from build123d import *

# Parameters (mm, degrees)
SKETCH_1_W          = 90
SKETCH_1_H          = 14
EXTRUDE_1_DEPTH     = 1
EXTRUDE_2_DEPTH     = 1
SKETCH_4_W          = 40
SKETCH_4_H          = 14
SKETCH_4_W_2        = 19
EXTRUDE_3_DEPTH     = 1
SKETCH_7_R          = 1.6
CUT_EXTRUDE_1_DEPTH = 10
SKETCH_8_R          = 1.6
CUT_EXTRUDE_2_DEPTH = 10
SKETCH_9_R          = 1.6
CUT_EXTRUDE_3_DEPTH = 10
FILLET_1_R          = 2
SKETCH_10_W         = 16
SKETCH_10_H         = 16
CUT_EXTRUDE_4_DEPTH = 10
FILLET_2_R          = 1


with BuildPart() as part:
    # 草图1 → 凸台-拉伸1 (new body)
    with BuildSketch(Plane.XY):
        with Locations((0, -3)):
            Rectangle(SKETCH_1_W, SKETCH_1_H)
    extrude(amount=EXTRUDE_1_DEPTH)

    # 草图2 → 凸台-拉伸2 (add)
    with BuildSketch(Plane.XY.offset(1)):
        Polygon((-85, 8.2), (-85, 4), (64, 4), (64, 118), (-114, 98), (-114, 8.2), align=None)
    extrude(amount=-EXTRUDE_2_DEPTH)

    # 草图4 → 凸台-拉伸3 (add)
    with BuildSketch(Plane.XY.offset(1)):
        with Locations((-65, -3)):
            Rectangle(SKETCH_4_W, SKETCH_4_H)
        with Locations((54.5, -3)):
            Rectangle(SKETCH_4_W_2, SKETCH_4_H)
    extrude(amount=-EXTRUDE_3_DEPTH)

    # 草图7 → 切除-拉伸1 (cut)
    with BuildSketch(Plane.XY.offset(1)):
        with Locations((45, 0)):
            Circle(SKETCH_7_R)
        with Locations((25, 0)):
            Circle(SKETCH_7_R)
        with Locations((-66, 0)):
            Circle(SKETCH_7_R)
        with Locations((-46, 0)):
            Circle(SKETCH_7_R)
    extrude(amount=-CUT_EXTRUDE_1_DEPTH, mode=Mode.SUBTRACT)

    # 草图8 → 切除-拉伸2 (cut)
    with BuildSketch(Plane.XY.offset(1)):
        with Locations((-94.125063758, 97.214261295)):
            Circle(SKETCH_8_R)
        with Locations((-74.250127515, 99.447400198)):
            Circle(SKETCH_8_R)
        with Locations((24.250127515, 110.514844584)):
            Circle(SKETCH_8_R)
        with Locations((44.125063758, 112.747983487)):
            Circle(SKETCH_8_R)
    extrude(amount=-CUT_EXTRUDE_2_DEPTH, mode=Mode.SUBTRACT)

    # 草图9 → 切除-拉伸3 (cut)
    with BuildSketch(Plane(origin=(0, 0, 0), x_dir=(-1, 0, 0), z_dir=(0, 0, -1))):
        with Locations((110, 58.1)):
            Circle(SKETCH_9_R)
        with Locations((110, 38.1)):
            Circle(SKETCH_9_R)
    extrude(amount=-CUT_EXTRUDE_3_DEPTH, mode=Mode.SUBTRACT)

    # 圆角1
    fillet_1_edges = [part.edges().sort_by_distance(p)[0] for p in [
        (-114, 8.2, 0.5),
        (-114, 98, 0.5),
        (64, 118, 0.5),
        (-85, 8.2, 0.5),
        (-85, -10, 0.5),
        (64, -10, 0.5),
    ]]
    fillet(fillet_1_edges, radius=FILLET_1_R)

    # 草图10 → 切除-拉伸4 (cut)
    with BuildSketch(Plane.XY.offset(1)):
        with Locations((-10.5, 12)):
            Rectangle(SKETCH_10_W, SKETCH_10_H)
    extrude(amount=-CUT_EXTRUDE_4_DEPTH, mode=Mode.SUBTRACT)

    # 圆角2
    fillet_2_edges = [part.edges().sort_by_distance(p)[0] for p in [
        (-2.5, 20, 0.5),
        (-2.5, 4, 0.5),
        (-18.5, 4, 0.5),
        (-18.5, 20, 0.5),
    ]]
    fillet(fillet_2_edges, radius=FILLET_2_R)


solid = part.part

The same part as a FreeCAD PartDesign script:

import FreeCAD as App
import Part
import Sketcher
from FreeCAD import Vector
Q = App.Units.Quantity


def edges_at(feature, points):
    """Names of the edges that pass closest to the given points."""
    edges = feature.Shape.Edges
    near = lambda p: min(range(len(edges)), key=lambda i: edges[i].distToShape(Part.Vertex(*p))[0])
    return sorted({f"Edge{near(p) + 1}" for p in points})


def add_polygon(sketch, points):
    """Adds a closed chain of lines whose ends are joined by coincident constraints."""
    first, n = sketch.GeometryCount, len(points)
    for a, b in zip(points, points[1:] + points[:1]):
        sketch.addGeometry(Part.LineSegment(App.Vector(*a, 0), App.Vector(*b, 0)), False)
    for i in range(n):
        sketch.addConstraint(Sketcher.Constraint("Coincident", first + i, 2, first + (i + 1) % n, 1))

doc = App.newDocument("Part")
body = doc.addObject("PartDesign::Body", "Body")

sketch1 = body.newObject("Sketcher::SketchObject", "Sketch")
sketch1.AttachmentSupport = (doc.getObject("XY_Plane"), [""])
sketch1.MapMode = "FlatFace"
add_polygon(sketch1, [(-45, 4), (-45, -10), (45, -10), (45, 4)])
sketch1.addConstraint([
    Sketcher.Constraint("Vertical", 0),
    Sketcher.Constraint("Horizontal", 1),
    Sketcher.Constraint("Vertical", 2),
    Sketcher.Constraint("Horizontal", 3),
    Sketcher.Constraint("DistanceX", 1, 1, 1, 2, Q("90 mm")),
    Sketcher.Constraint("DistanceY", 0, 2, 0, 1, Q("14 mm")),
    Sketcher.Constraint("DistanceX", 0, 2, -1, 1, Q("45 mm")),
    Sketcher.Constraint("DistanceY", 0, 2, -1, 1, Q("10 mm")),
])
pad1 = body.newObject("PartDesign::Pad", "Pad")
pad1.Profile = sketch1
pad1.Length = 1

sketch2 = body.newObject("Sketcher::SketchObject", "Sketch001")
sketch2.AttachmentSupport = (doc.getObject("XY_Plane"), [""])
sketch2.MapMode = "FlatFace"
sketch2.AttachmentOffset = App.Placement(Vector(0, 0, 1), App.Rotation())
add_polygon(sketch2, [(-85, 8.2), (-85, 4), (64, 4), (64, 118), (-114, 98), (-114, 8.2)])
sketch2.addConstraint([
    Sketcher.Constraint("Vertical", 0),
    Sketcher.Constraint("Horizontal", 1),
    Sketcher.Constraint("Vertical", 2),
    Sketcher.Constraint("Vertical", 4),
    Sketcher.Constraint("Horizontal", 5),
    Sketcher.Constraint("DistanceX", 1, 1, 1, 2, Q("149 mm")),
    Sketcher.Constraint("DistanceX", 5, 1, 5, 2, Q("29 mm")),
    Sketcher.Constraint("DistanceY", 2, 1, 2, 2, Q("114 mm")),
    Sketcher.Constraint("DistanceY", 0, 2, 0, 1, Q("4.2 mm")),
    Sketcher.Constraint("DistanceY", 4, 2, 4, 1, Q("89.8 mm")),
    Sketcher.Constraint("DistanceX", 0, 2, -1, 1, Q("85 mm")),
    Sketcher.Constraint("DistanceY", -1, 1, 0, 2, Q("4 mm")),
])
pad2 = body.newObject("PartDesign::Pad", "Pad001")
pad2.Profile = sketch2
pad2.Length = 1
pad2.Reversed = True

sketch3 = body.newObject("Sketcher::SketchObject", "Sketch002")
sketch3.AttachmentSupport = (doc.getObject("XY_Plane"), [""])
sketch3.MapMode = "FlatFace"
sketch3.AttachmentOffset = App.Placement(Vector(0, 0, 1), App.Rotation())
add_polygon(sketch3, [(-85, 4), (-85, -10), (-45, -10), (-45, 4)])
add_polygon(sketch3, [(45, 4), (45, -10), (64, -10), (64, 4)])
sketch3.addConstraint([
    Sketcher.Constraint("Vertical", 0),
    Sketcher.Constraint("Horizontal", 1),
    Sketcher.Constraint("Vertical", 2),
    Sketcher.Constraint("Horizontal", 3),
    Sketcher.Constraint("Vertical", 4),
    Sketcher.Constraint("Horizontal", 5),
    Sketcher.Constraint("Vertical", 6),
    Sketcher.Constraint("Horizontal", 7),
    Sketcher.Constraint("Symmetric", 1, 2, 4, 2, -2),
    Sketcher.Constraint("Horizontal", 3, 2, 6, 2),
    Sketcher.Constraint("DistanceX", 1, 1, 1, 2, Q("40 mm")),
    Sketcher.Constraint("DistanceX", 5, 1, 5, 2, Q("19 mm")),
    Sketcher.Constraint("DistanceY", 0, 2, 0, 1, Q("14 mm")),
    Sketcher.Constraint("DistanceX", 0, 2, -1, 1, Q("85 mm")),
    Sketcher.Constraint("DistanceY", 0, 2, -1, 1, Q("10 mm")),
])
pad3 = body.newObject("PartDesign::Pad", "Pad002")
pad3.Profile = sketch3
pad3.Length = 1
pad3.Reversed = True

sketch4 = body.newObject("Sketcher::SketchObject", "Sketch003")
sketch4.AttachmentSupport = (doc.getObject("XY_Plane"), [""])
sketch4.MapMode = "FlatFace"
sketch4.AttachmentOffset = App.Placement(Vector(0, 0, 1), App.Rotation())
sketch4.addGeometry([
    Part.Circle(Vector(45, 0, 0), Vector(0, 0, 1), 1.6),
    Part.Circle(Vector(25, 0, 0), Vector(0, 0, 1), 1.6),
    Part.Circle(Vector(-66, 0, 0), Vector(0, 0, 1), 1.6),
    Part.Circle(Vector(-46, 0, 0), Vector(0, 0, 1), 1.6),
], False)
sketch4.addConstraint([
    Sketcher.Constraint("Equal", 0, 1),
    Sketcher.Constraint("Equal", 1, 2),
    Sketcher.Constraint("Equal", 2, 3),
    Sketcher.Constraint("PointOnObject", 0, 3, -1),
    Sketcher.Constraint("PointOnObject", 1, 3, -1),
    Sketcher.Constraint("PointOnObject", 2, 3, -1),
    Sketcher.Constraint("PointOnObject", 3, 3, -1),
    Sketcher.Constraint("Diameter", 0, Q("3.2 mm")),
    Sketcher.Constraint("DistanceX", -1, 1, 0, 3, Q("45 mm")),
    Sketcher.Constraint("DistanceX", -1, 1, 1, 3, Q("25 mm")),
    Sketcher.Constraint("DistanceX", 2, 3, -1, 1, Q("66 mm")),
    Sketcher.Constraint("DistanceX", 3, 3, -1, 1, Q("46 mm")),
])
pocket1 = body.newObject("PartDesign::Pocket", "Pocket")
pocket1.Profile = sketch4
pocket1.Length = 10

sketch5 = body.newObject("Sketcher::SketchObject", "Sketch004")
sketch5.AttachmentSupport = (doc.getObject("XY_Plane"), [""])
sketch5.MapMode = "FlatFace"
sketch5.AttachmentOffset = App.Placement(Vector(0, 0, 1), App.Rotation())
sketch5.addGeometry([
    Part.Circle(Vector(-94.125064, 97.214261, 0), Vector(0, 0, 1), 1.6),
    Part.Circle(Vector(-74.250128, 99.4474, 0), Vector(0, 0, 1), 1.6),
    Part.Circle(Vector(24.250128, 110.514845, 0), Vector(0, 0, 1), 1.6),
    Part.Circle(Vector(44.125064, 112.747983, 0), Vector(0, 0, 1), 1.6),
], False)
sketch5.addConstraint([
    Sketcher.Constraint("Equal", 0, 1),
    Sketcher.Constraint("Equal", 1, 2),
    Sketcher.Constraint("Equal", 2, 3),
    Sketcher.Constraint("Diameter", 0, Q("3.2 mm")),
    Sketcher.Constraint("DistanceY", -1, 1, 1, 3, Q("99.4474 mm")),
    Sketcher.Constraint("DistanceY", -1, 1, 0, 3, Q("97.214261 mm")),
    Sketcher.Constraint("DistanceX", 0, 3, 2, 3, Q("118.375191 mm")),
    Sketcher.Constraint("DistanceY", 2, 3, 3, 3, Q("2.233139 mm")),
    Sketcher.Constraint("DistanceX", 1, 3, 3, 3, Q("118.375191 mm")),
    Sketcher.Constraint("DistanceX", 0, 3, -1, 1, Q("94.125064 mm")),
    Sketcher.Constraint("DistanceX", 1, 3, -1, 1, Q("74.250128 mm")),
    Sketcher.Constraint("DistanceY", -1, 1, 2, 3, Q("110.514845 mm")),
])
pocket2 = body.newObject("PartDesign::Pocket", "Pocket001")
pocket2.Profile = sketch5
pocket2.Length = 10

sketch6 = body.newObject("Sketcher::SketchObject", "Sketch005")
sketch6.AttachmentSupport = (doc.getObject("XY_Plane"), [""])
sketch6.MapMode = "FlatFace"
sketch6.addGeometry([
    Part.Circle(Vector(-110, 58.1, 0), Vector(0, 0, 1), 1.6),
    Part.Circle(Vector(-110, 38.1, 0), Vector(0, 0, 1), 1.6),
], False)
sketch6.addConstraint([
    Sketcher.Constraint("Equal", 0, 1),
    Sketcher.Constraint("Vertical", 0, 3, 1, 3),
    Sketcher.Constraint("Diameter", 0, Q("3.2 mm")),
    Sketcher.Constraint("DistanceX", 0, 3, -1, 1, Q("110 mm")),
    Sketcher.Constraint("DistanceY", 1, 3, 0, 3, Q("20 mm")),
    Sketcher.Constraint("DistanceY", -1, 1, 0, 3, Q("58.1 mm")),
])
pocket3 = body.newObject("PartDesign::Pocket", "Pocket002")
pocket3.Profile = sketch6
pocket3.Length = 10
pocket3.Reversed = True
doc.recompute()

fillet = body.newObject("PartDesign::Fillet", "Fillet")
fillet.Base = (pocket3, edges_at(pocket3, [
    (-114, 8.2, 0.5),
    (-114, 98, 0.5),
    (64, 118, 0.5),
    (-85, 8.2, 0.5),
    (-85, -10, 0.5),
    (64, -10, 0.5),
]))
fillet.Radius = 2

sketch7 = body.newObject("Sketcher::SketchObject", "Sketch006")
sketch7.AttachmentSupport = (doc.getObject("XY_Plane"), [""])
sketch7.MapMode = "FlatFace"
sketch7.AttachmentOffset = App.Placement(Vector(0, 0, 1), App.Rotation())
add_polygon(sketch7, [(-18.5, 20), (-18.5, 4), (-2.5, 4), (-2.5, 20)])
sketch7.addConstraint([
    Sketcher.Constraint("Vertical", 0),
    Sketcher.Constraint("Horizontal", 1),
    Sketcher.Constraint("Vertical", 2),
    Sketcher.Constraint("Horizontal", 3),
    Sketcher.Constraint("Equal", 3, 0),
    Sketcher.Constraint("DistanceX", 1, 1, 1, 2, Q("16 mm")),
    Sketcher.Constraint("DistanceY", -1, 1, 0, 2, Q("4 mm")),
    Sketcher.Constraint("DistanceX", 0, 2, -1, 1, Q("18.5 mm")),
])
pocket4 = body.newObject("PartDesign::Pocket", "Pocket003")
pocket4.Profile = sketch7
pocket4.Length = 10
doc.recompute()

fillet2 = body.newObject("PartDesign::Fillet", "Fillet001")
fillet2.Base = (pocket4, edges_at(pocket4, [
    (-2.5, 20, 0.5),
    (-2.5, 4, 0.5),
    (-18.5, 4, 0.5),
    (-18.5, 20, 0.5),
]))
fillet2.Radius = 1

doc.recompute()
